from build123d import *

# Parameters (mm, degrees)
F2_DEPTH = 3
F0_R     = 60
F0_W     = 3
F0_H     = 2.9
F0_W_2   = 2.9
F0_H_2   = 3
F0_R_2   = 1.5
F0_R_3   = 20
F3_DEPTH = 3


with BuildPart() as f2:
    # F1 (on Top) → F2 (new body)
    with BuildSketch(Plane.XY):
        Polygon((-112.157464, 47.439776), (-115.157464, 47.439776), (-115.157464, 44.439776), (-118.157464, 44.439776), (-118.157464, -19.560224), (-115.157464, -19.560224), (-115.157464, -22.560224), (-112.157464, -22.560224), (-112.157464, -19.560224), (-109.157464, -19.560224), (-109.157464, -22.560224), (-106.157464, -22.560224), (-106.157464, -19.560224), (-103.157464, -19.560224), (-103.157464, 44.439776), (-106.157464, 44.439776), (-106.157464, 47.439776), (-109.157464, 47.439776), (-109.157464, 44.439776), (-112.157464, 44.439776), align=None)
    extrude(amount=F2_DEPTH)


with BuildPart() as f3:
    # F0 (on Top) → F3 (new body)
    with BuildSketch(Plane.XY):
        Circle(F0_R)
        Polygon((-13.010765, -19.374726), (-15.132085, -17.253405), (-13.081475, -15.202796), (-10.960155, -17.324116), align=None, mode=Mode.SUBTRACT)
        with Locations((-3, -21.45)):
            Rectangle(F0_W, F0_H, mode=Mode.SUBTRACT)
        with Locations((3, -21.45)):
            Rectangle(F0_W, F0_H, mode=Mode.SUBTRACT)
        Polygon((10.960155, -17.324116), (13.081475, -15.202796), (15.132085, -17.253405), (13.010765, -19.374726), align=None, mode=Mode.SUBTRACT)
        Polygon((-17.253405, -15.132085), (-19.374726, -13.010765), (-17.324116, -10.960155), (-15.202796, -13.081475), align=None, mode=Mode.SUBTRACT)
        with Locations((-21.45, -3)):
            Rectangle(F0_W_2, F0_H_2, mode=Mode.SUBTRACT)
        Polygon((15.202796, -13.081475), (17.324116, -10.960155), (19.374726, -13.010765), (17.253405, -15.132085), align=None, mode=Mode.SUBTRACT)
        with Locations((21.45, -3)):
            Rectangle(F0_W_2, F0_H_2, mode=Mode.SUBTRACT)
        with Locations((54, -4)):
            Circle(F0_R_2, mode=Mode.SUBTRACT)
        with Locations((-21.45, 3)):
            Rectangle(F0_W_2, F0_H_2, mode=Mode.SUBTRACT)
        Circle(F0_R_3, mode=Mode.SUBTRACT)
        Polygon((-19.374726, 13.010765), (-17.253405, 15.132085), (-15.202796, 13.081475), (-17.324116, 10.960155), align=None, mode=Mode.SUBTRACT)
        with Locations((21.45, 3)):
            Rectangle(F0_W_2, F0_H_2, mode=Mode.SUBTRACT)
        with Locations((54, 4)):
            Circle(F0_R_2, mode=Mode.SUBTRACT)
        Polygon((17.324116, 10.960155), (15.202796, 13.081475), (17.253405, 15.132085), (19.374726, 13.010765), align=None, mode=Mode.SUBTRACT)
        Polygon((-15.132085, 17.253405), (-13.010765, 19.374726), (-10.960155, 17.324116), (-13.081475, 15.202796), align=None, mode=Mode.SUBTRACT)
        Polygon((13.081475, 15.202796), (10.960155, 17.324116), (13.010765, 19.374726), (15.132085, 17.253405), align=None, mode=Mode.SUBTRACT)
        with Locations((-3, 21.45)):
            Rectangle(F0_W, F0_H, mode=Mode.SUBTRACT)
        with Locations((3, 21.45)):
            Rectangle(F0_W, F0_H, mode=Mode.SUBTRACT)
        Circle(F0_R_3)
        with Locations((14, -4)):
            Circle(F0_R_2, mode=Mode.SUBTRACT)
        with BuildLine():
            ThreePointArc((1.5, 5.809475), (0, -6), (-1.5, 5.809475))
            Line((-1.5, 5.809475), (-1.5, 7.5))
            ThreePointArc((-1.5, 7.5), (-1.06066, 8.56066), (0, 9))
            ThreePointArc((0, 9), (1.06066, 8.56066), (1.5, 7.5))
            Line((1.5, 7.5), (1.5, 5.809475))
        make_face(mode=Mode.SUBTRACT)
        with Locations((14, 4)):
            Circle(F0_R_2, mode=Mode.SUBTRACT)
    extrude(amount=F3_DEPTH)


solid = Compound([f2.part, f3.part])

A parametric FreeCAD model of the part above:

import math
import FreeCAD as App
import Part
import Sketcher
from FreeCAD import Vector


def add_polygon(sketch, points):
    """Adds a closed chain of lines whose ends are joined by coincident constraints."""
    first, n = sketch.GeometryCount, len(points)
    for a, b in zip(points, points[1:] + points[:1]):
        sketch.addGeometry(Part.LineSegment(App.Vector(*a, 0), App.Vector(*b, 0)), False)
    for i in range(n):
        sketch.addConstraint(Sketcher.Constraint("Coincident", first + i, 2, first + (i + 1) % n, 1))

doc = App.newDocument("Part")
body = doc.addObject("PartDesign::Body", "Body")

sketch1 = body.newObject("Sketcher::SketchObject", "Sketch")
sketch1.AttachmentSupport = (doc.getObject("XY_Plane"), [""])
sketch1.MapMode = "FlatFace"
add_polygon(sketch1, [(-112.157464, 47.439776), (-115.157464, 47.439776), (-115.157464, 44.439776), (-118.157464, 44.439776), (-118.157464, -19.560224), (-115.157464, -19.560224), (-115.157464, -22.560224), (-112.157464, -22.560224), (-112.157464, -19.560224), (-109.157464, -19.560224), (-109.157464, -22.560224), (-106.157464, -22.560224), (-106.157464, -19.560224), (-103.157464, -19.560224), (-103.157464, 44.439776), (-106.157464, 44.439776), (-106.157464, 47.439776), (-109.157464, 47.439776), (-109.157464, 44.439776), (-112.157464, 44.439776)])
sketch1.addConstraint(Sketcher.Constraint("Horizontal", 0))
sketch1.addConstraint(Sketcher.Constraint("Vertical", 1))
sketch1.addConstraint(Sketcher.Constraint("Horizontal", 2))
sketch1.addConstraint(Sketcher.Constraint("Vertical", 3))
sketch1.addConstraint(Sketcher.Constraint("Horizontal", 4))
sketch1.addConstraint(Sketcher.Constraint("Vertical", 5))
sketch1.addConstraint(Sketcher.Constraint("Horizontal", 6))
sketch1.addConstraint(Sketcher.Constraint("Vertical", 7))
sketch1.addConstraint(Sketcher.Constraint("Horizontal", 8))
sketch1.addConstraint(Sketcher.Constraint("Vertical", 9))
sketch1.addConstraint(Sketcher.Constraint("Horizontal", 10))
sketch1.addConstraint(Sketcher.Constraint("Vertical", 11))
sketch1.addConstraint(Sketcher.Constraint("Horizontal", 12))
sketch1.addConstraint(Sketcher.Constraint("Vertical", 13))
sketch1.addConstraint(Sketcher.Constraint("Horizontal", 14))
sketch1.addConstraint(Sketcher.Constraint("Vertical", 15))
sketch1.addConstraint(Sketcher.Constraint("Horizontal", 16))
sketch1.addConstraint(Sketcher.Constraint("Vertical", 17))
sketch1.addConstraint(Sketcher.Constraint("Horizontal", 18))
sketch1.addConstraint(Sketcher.Constraint("Vertical", 19))
sketch1.addConstraint(Sketcher.Constraint("Horizontal", 4, 2, 7, 2))
sketch1.addConstraint(Sketcher.Constraint("Horizontal", 6, 2, 9, 2))
sketch1.addConstraint(Sketcher.Constraint("Horizontal", 8, 2, 11, 2))
sketch1.addConstraint(Sketcher.Constraint("Horizontal", 2, 2, 13, 2))
sketch1.addConstraint(Sketcher.Constraint("Horizontal", 0, 2, 15, 2))
sketch1.addConstraint(Sketcher.Constraint("Horizontal", 14, 2, 17, 2))
sketch1.addConstraint(Sketcher.Constraint("Vertical", 1, 2, 4, 2))
sketch1.addConstraint(Sketcher.Constraint("Vertical", 11, 2, 14, 2))
sketch1.addConstraint(Sketcher.Constraint("Vertical", 9, 2, 16, 2))
sketch1.addConstraint(Sketcher.Constraint("Vertical", 7, 2, 18, 2))
sketch1.addConstraint(Sketcher.Constraint("Equal", 0, 2))
sketch1.addConstraint(Sketcher.Constraint("Equal", 6, 8))
sketch1.addConstraint(Sketcher.Constraint("Equal", 8, 10))
sketch1.addConstraint(Sketcher.Constraint("Equal", 10, 12))
sketch1.addConstraint(Sketcher.Constraint("Equal", 18, 1))
sketch1.addConstraint(Sketcher.Constraint("Equal", 1, 5))
sketch1.addConstraint(Sketcher.Constraint("DistanceX", 0, 2, 0, 1, 3.0))
sketch1.addConstraint(Sketcher.Constraint("DistanceY", 3, 2, 3, 1, 64.0))
sketch1.addConstraint(Sketcher.Constraint("DistanceX", 0, 2, -1, 1, 115.157464))
sketch1.addConstraint(Sketcher.Constraint("DistanceY", -1, 1, 0, 2, 47.439776))
pad1 = body.newObject("PartDesign::Pad", "Pad")
pad1.Profile = sketch1
pad1.Length = 3
body2 = doc.addObject("PartDesign::Body", "Body001")

sketch2 = body2.newObject("Sketcher::SketchObject", "Sketch001")
sketch2.AttachmentSupport = (doc.getObject("XY_Plane001"), [""])
sketch2.MapMode = "FlatFace"
sketch2.addGeometry(Part.Circle(Vector(0, 0, 0), Vector(0, 0, 1), 60), False)
add_polygon(sketch2, [(-10.960155, -17.324116), (-13.010765, -19.374726), (-15.132085, -17.253405), (-13.081475, -15.202796)])
add_polygon(sketch2, [(-15.202796, -13.081475), (-17.253405, -15.132085), (-19.374726, -13.010765), (-17.324116, -10.960155)])
add_polygon(sketch2, [(-1.5, -22.9), (-4.5, -22.9), (-4.5, -20), (-1.5, -20)])
add_polygon(sketch2, [(4.5, -22.9), (1.5, -22.9), (1.5, -20), (4.5, -20)])
add_polygon(sketch2, [(13.010765, -19.374726), (10.960155, -17.324116), (13.081475, -15.202796), (15.132085, -17.253405)])
add_polygon(sketch2, [(-20, -4.5), (-22.9, -4.5), (-22.9, -1.5), (-20, -1.5)])
sketch2.addGeometry(Part.Circle(Vector(14, -4, 0), Vector(0, 0, 1), 1.5), False)
add_polygon(sketch2, [(17.253405, -15.132085), (15.202796, -13.081475), (17.324116, -10.960155), (19.374726, -13.010765)])
add_polygon(sketch2, [(22.9, -4.5), (20, -4.5), (20, -1.5), (22.9, -1.5)])
sketch2.addGeometry(Part.Circle(Vector(54, -4, 0), Vector(0, 0, 1), 1.5), False)
add_polygon(sketch2, [(-20, 1.5), (-22.9, 1.5), (-22.9, 4.5), (-20, 4.5)])
sketch2.addGeometry(Part.LineSegment(Vector(1.5, 7.5, 0), Vector(1.5, 5.809475, 0)), False)
sketch2.addGeometry(Part.ArcOfCircle(Part.Circle(Vector(0, 0, 0), Vector(0, 0, 1), 6), math.radians(104.477512), math.radians(435.522488)), False)
sketch2.addGeometry(Part.LineSegment(Vector(-1.5, 5.809475, 0), Vector(-1.5, 7.5, 0)), False)
sketch2.addGeometry(Part.ArcOfCircle(Part.Circle(Vector(0.000001, 7.499999, 0), Vector(0, 0, 1), 1.500001), math.radians(90.000022), math.radians(179.999978)), False)
sketch2.addGeometry(Part.ArcOfCircle(Part.Circle(Vector(-0.000001, 7.499999, 0), Vector(0, 0, 1), 1.500001), math.radians(0.000022), math.radians(89.999978)), False)
sketch2.addGeometry(Part.Circle(Vector(14, 4, 0), Vector(0, 0, 1), 1.5), False)
add_polygon(sketch2, [(-17.324116, 10.960155), (-19.374726, 13.010765), (-17.253405, 15.132085), (-15.202796, 13.081475)])
add_polygon(sketch2, [(-13.081475, 15.202796), (-15.132085, 17.253405), (-13.010765, 19.374726), (-10.960155, 17.324116)])
add_polygon(sketch2, [(-1.5, 20), (-4.5, 20), (-4.5, 22.9), (-1.5, 22.9)])
add_polygon(sketch2, [(4.5, 20), (1.5, 20), (1.5, 22.9), (4.5, 22.9)])
add_polygon(sketch2, [(15.132085, 17.253405), (13.081475, 15.202796), (10.960155, 17.324116), (13.010765, 19.374726)])
add_polygon(sketch2, [(22.9, 1.5), (20, 1.5), (20, 4.5), (22.9, 4.5)])
sketch2.addGeometry(Part.Circle(Vector(54, 4, 0), Vector(0, 0, 1), 1.5), False)
add_polygon(sketch2, [(19.374726, 13.010765), (17.324116, 10.960155), (15.202796, 13.081475), (17.253405, 15.132085)])
sketch2.addConstraint(Sketcher.Constraint("Coincident", 39, 2, 40, 2))
sketch2.addConstraint(Sketcher.Constraint("Coincident", 40, 1, 41, 1))
sketch2.addConstraint(Sketcher.Constraint("Tangent", 41, 2, 42, 2))
sketch2.addConstraint(Sketcher.Constraint("Tangent", 42, 1, 43, 2))
sketch2.addConstraint(Sketcher.Constraint("Tangent", 43, 1, 39, 1))
sketch2.addConstraint(Sketcher.Constraint("Horizontal", 9))
sketch2.addConstraint(Sketcher.Constraint("Vertical", 10))
sketch2.addConstraint(Sketcher.Constraint("Horizontal", 11))
sketch2.addConstraint(Sketcher.Constraint("Vertical", 12))
sketch2.addConstraint(Sketcher.Constraint("Horizontal", 13))
sketch2.addConstraint(Sketcher.Constraint("Vertical", 14))
sketch2.addConstraint(Sketcher.Constraint("Horizontal", 15))
sketch2.addConstraint(Sketcher.Constraint("Vertical", 16))
sketch2.addConstraint(Sketcher.Constraint("Horizontal", 21))
sketch2.addConstraint(Sketcher.Constraint("Vertical", 22))
sketch2.addConstraint(Sketcher.Constraint("Horizontal", 23))
sketch2.addConstraint(Sketcher.Constraint("Vertical", 24))
sketch2.addConstraint(Sketcher.Constraint("Horizontal", 30))
sketch2.addConstraint(Sketcher.Constraint("Vertical", 31))
sketch2.addConstraint(Sketcher.Constraint("Horizontal", 32))
sketch2.addConstraint(Sketcher.Constraint("Vertical", 33))
sketch2.addConstraint(Sketcher.Constraint("Horizontal", 35))
sketch2.addConstraint(Sketcher.Constraint("Vertical", 36))
sketch2.addConstraint(Sketcher.Constraint("Horizontal", 37))
sketch2.addConstraint(Sketcher.Constraint("Vertical", 38))
sketch2.addConstraint(Sketcher.Constraint("Vertical", 39))
sketch2.addConstraint(Sketcher.Constraint("Vertical", 41))
sketch2.addConstraint(Sketcher.Constraint("Horizontal", 53))
sketch2.addConstraint(Sketcher.Constraint("Vertical", 54))
sketch2.addConstraint(Sketcher.Constraint("Horizontal", 55))
sketch2.addConstraint(Sketcher.Constraint("Vertical", 56))
sketch2.addConstraint(Sketcher.Constraint("Horizontal", 57))
sketch2.addConstraint(Sketcher.Constraint("Vertical", 58))
sketch2.addConstraint(Sketcher.Constraint("Horizontal", 59))
sketch2.addConstraint(Sketcher.Constraint("Vertical", 60))
sketch2.addConstraint(Sketcher.Constraint("Horizontal", 65))
sketch2.addConstraint(Sketcher.Constraint("Vertical", 66))
sketch2.addConstraint(Sketcher.Constraint("Horizontal", 67))
sketch2.addConstraint(Sketcher.Constraint("Vertical", 68))
sketch2.addConstraint(Sketcher.Constraint("Coincident", 0, 3, -1, 1))
sketch2.addConstraint(Sketcher.Constraint("Coincident", 40, 3, -1, 1))
sketch2.addConstraint(Sketcher.Constraint("Equal", 25, 34))
sketch2.addConstraint(Sketcher.Constraint("Equal", 34, 42))
sketch2.addConstraint(Sketcher.Constraint("Equal", 42, 43))
sketch2.addConstraint(Sketcher.Constraint("Equal", 43, 44))
sketch2.addConstraint(Sketcher.Constraint("Equal", 44, 69))
sketch2.addConstraint(Sketcher.Constraint("Symmetric", 32, 2, 35, 2, -1, 1))
sketch2.addConstraint(Sketcher.Constraint("Symmetric", 30, 2, 37, 2, -1, 1))
sketch2.addConstraint(Sketcher.Constraint("Symmetric", 28, 2, 45, 2, -1, 1))
sketch2.addConstraint(Sketcher.Constraint("Symmetric", 29, 2, 46, 2, -1, 1))
sketch2.addConstraint(Sketcher.Constraint("Symmetric", 26, 2, 47, 2, -1, 1))
sketch2.addConstraint(Sketcher.Constraint("Symmetric", 27, 2, 48, 2, -1, 1))
sketch2.addConstraint(Sketcher.Constraint("Symmetric", 19, 2, 49, 2, -1, 1))
sketch2.addConstraint(Sketcher.Constraint("Symmetric", 20, 2, 50, 2, -1, 1))
sketch2.addConstraint(Sketcher.Constraint("Symmetric", 17, 2, 51, 2, -1, 1))
sketch2.addConstraint(Sketcher.Constraint("Symmetric", 18, 2, 52, 2, -1, 1))
sketch2.addConstraint(Sketcher.Constraint("Symmetric", 15, 2, 53, 2, -1, 1))
sketch2.addConstraint(Sketcher.Constraint("Symmetric", 13, 2, 55, 2, -1, 1))
sketch2.addConstraint(Sketcher.Constraint("Symmetric", 11, 2, 57, 2, -1, 1))
sketch2.addConstraint(Sketcher.Constraint("Symmetric", 9, 2, 59, 2, -1, 1))
sketch2.addConstraint(Sketcher.Constraint("Symmetric", 3, 2, 61, 2, -1, 1))
sketch2.addConstraint(Sketcher.Constraint("Symmetric", 4, 2, 62, 2, -1, 1))
sketch2.addConstraint(Sketcher.Constraint("Symmetric", 1, 2, 63, 2, -1, 1))
sketch2.addConstraint(Sketcher.Constraint("Symmetric", 2, 2, 64, 2, -1, 1))
sketch2.addConstraint(Sketcher.Constraint("Symmetric", 23, 2, 65, 2, -1, 1))
sketch2.addConstraint(Sketcher.Constraint("Symmetric", 21, 2, 67, 2, -1, 1))
sketch2.addConstraint(Sketcher.Constraint("Symmetric", 7, 2, 70, 2, -1, 1))
sketch2.addConstraint(Sketcher.Constraint("Symmetric", 8, 2, 71, 2, -1, 1))
sketch2.addConstraint(Sketcher.Constraint("Symmetric", 5, 2, 72, 2, -1, 1))
sketch2.addConstraint(Sketcher.Constraint("Symmetric", 6, 2, 73, 2, -1, 1))
sketch2.addConstraint(Sketcher.Constraint("Symmetric", 12, 2, 13, 2, -2))
sketch2.addConstraint(Sketcher.Constraint("Symmetric", 10, 2, 15, 2, -2))
sketch2.addConstraint(Sketcher.Constraint("Symmetric", 4, 2, 17, 2, -2))
sketch2.addConstraint(Sketcher.Constraint("Symmetric", 3, 2, 18, 2, -2))
sketch2.addConstraint(Sketcher.Constraint("Symmetric", 2, 2, 19, 2, -2))
sketch2.addConstraint(Sketcher.Constraint("Symmetric", 1, 2, 20, 2, -2))
sketch2.addConstraint(Sketcher.Constraint("Symmetric", 8, 2, 26, 2, -2))
sketch2.addConstraint(Sketcher.Constraint("Symmetric", 7, 2, 27, 2, -2))
sketch2.addConstraint(Sketcher.Constraint("Symmetric", 6, 2, 28, 2, -2))
sketch2.addConstraint(Sketcher.Constraint("Symmetric", 5, 2, 29, 2, -2))
sketch2.addConstraint(Sketcher.Constraint("Symmetric", 24, 2, 30, 2, -2))
sketch2.addConstraint(Sketcher.Constraint("Symmetric", 22, 2, 32, 2, -2))
sketch2.addConstraint(Sketcher.Constraint("Symmetric", 25, 3, 44, 3, -1))
sketch2.addConstraint(Sketcher.Constraint("Symmetric", 34, 3, 69, 3, -1))
sketch2.addConstraint(Sketcher.Constraint("PointOnObject", 42, 3, -2))
sketch2.addConstraint(Sketcher.Constraint("PointOnObject", 42, 1, -2))
sketch2.addConstraint(Sketcher.Constraint("Perpendicular", 1, 2))
sketch2.addConstraint(Sketcher.Constraint("Perpendicular", 2, 3))
sketch2.addConstraint(Sketcher.Constraint("Perpendicular", 3, 4))
sketch2.addConstraint(Sketcher.Constraint("Perpendicular", 4, 5))
sketch2.addConstraint(Sketcher.Constraint("Perpendicular", 5, 6))
sketch2.addConstraint(Sketcher.Constraint("Perpendicular", 6, 7))
sketch2.addConstraint(Sketcher.Constraint("Perpendicular", 7, 8))
sketch2.addConstraint(Sketcher.Constraint("Parallel", 8, 17))
sketch2.addConstraint(Sketcher.Constraint("Horizontal", 25, 3, 34, 3))
sketch2.addConstraint(Sketcher.Constraint("Vertical", 14, 2, 39, 2))
sketch2.addConstraint(Sketcher.Constraint("Equal", 67, 10))
sketch2.addConstraint(Sketcher.Constraint("Equal", 59, 22))
sketch2.addConstraint(Sketcher.Constraint("Equal", 3, 5))
sketch2.addConstraint(Sketcher.Constraint("Equal", 4, 6))
sketch2.addConstraint(Sketcher.Constraint("Diameter", 0, 120.0))
sketch2.addConstraint(Sketcher.Constraint("Diameter", 25, 3.0))
sketch2.addConstraint(Sketcher.Constraint("Radius", 40, 6.0))
sketch2.addConstraint(Sketcher.Constraint("DistanceX", 9, 2, 9, 1, 3.0))
sketch2.addConstraint(Sketcher.Constraint("Distance", 2, 3.0))
sketch2.addConstraint(Sketcher.Constraint("DistanceX", 21, 2, 21, 1, 2.9))
sketch2.addConstraint(Sketcher.Constraint("DistanceX", -1, 1, 25, 3, 14.0))
sketch2.addConstraint(Sketcher.Constraint("DistanceY", 25, 3, -1, 1, 4.0))
sketch2.addConstraint(Sketcher.Constraint("DistanceX", -1, 1, 34, 3, 54.0))
sketch2.addConstraint(Sketcher.Constraint("DistanceY", 10, 2, -1, 1, 20.0))
sketch2.addConstraint(Sketcher.Constraint("DistanceX", 23, 2, -1, 1, 20.0))
sketch2.addConstraint(Sketcher.Constraint("DistanceY", -1, 1, 42, 1, 9.0))
sketch2.addConstraint(Sketcher.Constraint("Distance", 1, 2.9))
sketch2.addConstraint(Sketcher.Constraint("DistanceY", 21, 2, -1, 1, 4.5))
sketch2.addConstraint(Sketcher.Constraint("DistanceX", 1, 2, -1, 1, 13.010765))
sketch2.addConstraint(Sketcher.Constraint("DistanceY", 1, 2, -1, 1, 19.374726))
sketch2.addConstraint(Sketcher.Constraint("DistanceX", 5, 2, -1, 1, 17.253405))
sketch2.addConstraint(Sketcher.Constraint("DistanceY", 5, 2, -1, 1, 15.132085))
pad2 = body2.newObject("PartDesign::Pad", "Pad001")
pad2.Profile = sketch2
pad2.Length = 3

doc.recompute()
